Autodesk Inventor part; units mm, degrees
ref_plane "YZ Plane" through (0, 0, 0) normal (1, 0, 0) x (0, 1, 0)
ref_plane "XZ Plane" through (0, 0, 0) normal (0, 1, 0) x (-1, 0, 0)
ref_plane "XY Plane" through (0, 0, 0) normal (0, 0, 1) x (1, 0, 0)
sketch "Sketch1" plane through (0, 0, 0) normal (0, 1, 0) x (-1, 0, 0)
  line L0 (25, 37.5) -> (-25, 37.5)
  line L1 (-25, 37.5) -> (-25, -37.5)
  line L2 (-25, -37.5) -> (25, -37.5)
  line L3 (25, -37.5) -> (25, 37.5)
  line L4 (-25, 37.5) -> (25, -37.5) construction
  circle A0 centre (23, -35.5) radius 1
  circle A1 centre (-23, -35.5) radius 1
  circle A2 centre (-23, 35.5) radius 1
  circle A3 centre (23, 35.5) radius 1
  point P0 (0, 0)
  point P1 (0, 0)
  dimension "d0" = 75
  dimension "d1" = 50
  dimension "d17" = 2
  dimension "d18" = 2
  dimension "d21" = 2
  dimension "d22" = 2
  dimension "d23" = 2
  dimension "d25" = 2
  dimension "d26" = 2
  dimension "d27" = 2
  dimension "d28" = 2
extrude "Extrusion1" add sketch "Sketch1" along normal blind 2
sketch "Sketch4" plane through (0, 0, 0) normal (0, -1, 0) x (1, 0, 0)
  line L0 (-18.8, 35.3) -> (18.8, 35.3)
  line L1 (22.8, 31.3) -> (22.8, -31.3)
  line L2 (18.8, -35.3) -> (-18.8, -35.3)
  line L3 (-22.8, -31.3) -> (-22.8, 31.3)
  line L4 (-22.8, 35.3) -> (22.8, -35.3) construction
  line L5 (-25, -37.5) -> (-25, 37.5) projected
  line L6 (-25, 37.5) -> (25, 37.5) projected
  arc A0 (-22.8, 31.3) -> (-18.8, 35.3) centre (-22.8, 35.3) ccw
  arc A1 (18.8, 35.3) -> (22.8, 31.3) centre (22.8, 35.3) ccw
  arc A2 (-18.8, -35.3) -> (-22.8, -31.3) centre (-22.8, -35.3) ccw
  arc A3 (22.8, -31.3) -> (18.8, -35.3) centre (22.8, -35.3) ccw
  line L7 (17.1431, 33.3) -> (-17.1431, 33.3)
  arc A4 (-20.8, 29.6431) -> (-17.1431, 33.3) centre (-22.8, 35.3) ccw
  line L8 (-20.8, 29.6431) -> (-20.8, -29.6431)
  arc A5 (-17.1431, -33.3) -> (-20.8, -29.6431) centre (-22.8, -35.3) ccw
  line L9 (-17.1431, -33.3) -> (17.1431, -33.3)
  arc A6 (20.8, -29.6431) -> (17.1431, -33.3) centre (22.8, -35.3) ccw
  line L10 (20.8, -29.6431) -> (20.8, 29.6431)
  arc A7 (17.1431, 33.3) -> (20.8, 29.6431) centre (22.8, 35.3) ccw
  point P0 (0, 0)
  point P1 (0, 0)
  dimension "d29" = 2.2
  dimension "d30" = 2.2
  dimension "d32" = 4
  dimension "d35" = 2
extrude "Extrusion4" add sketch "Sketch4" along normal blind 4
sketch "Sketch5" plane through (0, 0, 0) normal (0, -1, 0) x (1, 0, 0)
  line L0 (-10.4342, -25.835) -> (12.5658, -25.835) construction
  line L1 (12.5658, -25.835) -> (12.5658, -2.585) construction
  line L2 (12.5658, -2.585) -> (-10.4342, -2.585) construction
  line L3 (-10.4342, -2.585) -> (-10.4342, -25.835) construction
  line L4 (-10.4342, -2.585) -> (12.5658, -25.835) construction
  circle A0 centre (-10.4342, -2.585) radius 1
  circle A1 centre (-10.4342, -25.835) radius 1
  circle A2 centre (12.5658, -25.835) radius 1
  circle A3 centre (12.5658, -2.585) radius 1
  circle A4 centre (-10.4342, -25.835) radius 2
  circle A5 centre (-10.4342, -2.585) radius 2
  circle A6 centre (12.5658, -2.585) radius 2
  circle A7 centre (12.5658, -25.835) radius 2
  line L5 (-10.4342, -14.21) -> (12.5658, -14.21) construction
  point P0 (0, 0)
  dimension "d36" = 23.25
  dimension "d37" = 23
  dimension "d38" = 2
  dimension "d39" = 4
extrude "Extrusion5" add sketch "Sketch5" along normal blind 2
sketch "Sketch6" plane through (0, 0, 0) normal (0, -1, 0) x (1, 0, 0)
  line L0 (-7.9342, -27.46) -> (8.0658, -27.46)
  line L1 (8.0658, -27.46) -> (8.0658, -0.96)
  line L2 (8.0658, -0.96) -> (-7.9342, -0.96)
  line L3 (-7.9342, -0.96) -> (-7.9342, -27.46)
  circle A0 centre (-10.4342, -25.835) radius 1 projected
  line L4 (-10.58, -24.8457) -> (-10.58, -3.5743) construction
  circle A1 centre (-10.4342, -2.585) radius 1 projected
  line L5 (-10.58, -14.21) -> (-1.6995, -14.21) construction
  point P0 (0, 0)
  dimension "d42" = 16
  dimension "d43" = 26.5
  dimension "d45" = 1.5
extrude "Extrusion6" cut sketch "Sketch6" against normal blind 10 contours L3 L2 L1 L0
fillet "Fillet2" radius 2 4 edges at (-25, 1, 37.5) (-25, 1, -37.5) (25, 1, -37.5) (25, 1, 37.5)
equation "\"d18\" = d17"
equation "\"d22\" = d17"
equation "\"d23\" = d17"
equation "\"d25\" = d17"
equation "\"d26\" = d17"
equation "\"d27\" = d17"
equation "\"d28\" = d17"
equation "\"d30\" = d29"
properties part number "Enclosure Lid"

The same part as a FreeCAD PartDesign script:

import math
import FreeCAD as App
import Part
import Sketcher
Q = App.Units.Quantity


def edges_at(feature, points):
    """Names of the edges that pass closest to the given points."""
    edges = feature.Shape.Edges
    near = lambda p: min(range(len(edges)), key=lambda i: edges[i].distToShape(Part.Vertex(*p))[0])
    return sorted({f"Edge{near(p) + 1}" for p in points})


def add_polygon(sketch, points):
    """Adds a closed chain of lines whose ends are joined by coincident constraints."""
    first, n = sketch.GeometryCount, len(points)
    for a, b in zip(points, points[1:] + points[:1]):
        sketch.addGeometry(Part.LineSegment(App.Vector(*a, 0), App.Vector(*b, 0)), False)
    for i in range(n):
        sketch.addConstraint(Sketcher.Constraint("Coincident", first + i, 2, first + (i + 1) % n, 1))

doc = App.newDocument("Part")
params = doc.addObject("Spreadsheet::Sheet", "Params")
for row, (alias, value) in enumerate([
    ("sketch1_diameter", "2 mm"),
    ("sketch1_width", "50 mm"),
    ("sketch1_height", "75 mm"),
    ("pad1_length", "2 mm"),
    ("sketch2_radius", "4 mm"),
    ("sketch2_radius2", "6 mm"),
    ("sketch2_width", "37.6 mm"),
    ("sketch2_height", "62.6 mm"),
    ("pad2_length", "4 mm"),
    ("sketch3_diameter", "4 mm"),
    ("sketch3_diameter2", "2 mm"),
    ("pad3_length", "2 mm"),
    ("sketch4_width", "16 mm"),
    ("sketch4_height", "26.5 mm"),
    ("pocket1_length", "10 mm"),
    ("fillet_radius", "2 mm"),
], start=1):
    params.set(f"A{row}", alias)
    params.set(f"B{row}", "=" + value)
    params.setAlias(f"B{row}", alias)

body = doc.addObject("PartDesign::Body", "Body")

sketch1 = doc.addObject("Sketcher::SketchObject", "Sketch")
body.addObject(sketch1)
sketch1.AttachmentSupport = (doc.XZ_Plane, [""])
sketch1.MapMode = "FlatFace"
add_polygon(sketch1, [(-25, -37.5), (-25, 37.5), (25, 37.5), (25, -37.5)])
sketch1.addGeometry(Part.Circle(App.Vector(23, -35.5, 0), App.Vector(0, 0, 1), 1), False)
sketch1.addGeometry(Part.Circle(App.Vector(-23, -35.5, 0), App.Vector(0, 0, 1), 1), False)
sketch1.addGeometry(Part.Circle(App.Vector(23, 35.5, 0), App.Vector(0, 0, 1), 1), False)
sketch1.addGeometry(Part.Circle(App.Vector(-23, 35.5, 0), App.Vector(0, 0, 1), 1), False)
sketch1.addConstraint([
    Sketcher.Constraint("Vertical", 0),
    Sketcher.Constraint("Horizontal", 1),
    Sketcher.Constraint("Vertical", 2),
    Sketcher.Constraint("Horizontal", 3),
    Sketcher.Constraint("Equal", 4, 5),
    Sketcher.Constraint("Equal", 5, 6),
    Sketcher.Constraint("Equal", 6, 7),
    Sketcher.Constraint("Symmetric", 5, 3, 6, 3, -1, 1),
    Sketcher.Constraint("Symmetric", 4, 3, 7, 3, -1, 1),
    Sketcher.Constraint("Symmetric", 0, 2, 2, 2, -1, 1),
    Sketcher.Constraint("Symmetric", 4, 3, 5, 3, -2),
    Sketcher.Constraint("Diameter", 4, Q("2 mm")),
    Sketcher.Constraint("DistanceX", 1, 1, 1, 2, Q("50 mm")),
    Sketcher.Constraint("DistanceY", 0, 1, 0, 2, Q("75 mm")),
    Sketcher.Constraint("DistanceX", 0, 2, 7, 3, Q("2 mm")),
    Sketcher.Constraint("DistanceY", 7, 3, 0, 2, Q("2 mm")),
])
sketch1.setExpression("Constraints[15]", "Params.sketch1_diameter")
sketch1.setExpression("Constraints[16]", "Params.sketch1_width")
sketch1.setExpression("Constraints[17]", "Params.sketch1_height")
pad1 = doc.addObject("PartDesign::Pad", "Pad")
body.addObject(pad1)
pad1.Profile = sketch1
pad1.setExpression("Length", "Params.pad1_length")
pad1.Reversed = True

sketch2 = doc.addObject("Sketcher::SketchObject", "Sketch001")
body.addObject(sketch2)
sketch2.AttachmentSupport = (doc.XZ_Plane, [""])
sketch2.MapMode = "FlatFace"
sketch2.addGeometry([
    Part.LineSegment(App.Vector(18.8, 35.3, 0), App.Vector(-18.8, 35.3, 0)),
    Part.ArcOfCircle(Part.Circle(App.Vector(-22.8, 35.3, 0), App.Vector(0, 0, 1), 4), math.radians(-90), math.radians(0)),
    Part.LineSegment(App.Vector(-22.8, 31.3, 0), App.Vector(-22.8, -31.3, 0)),
    Part.ArcOfCircle(Part.Circle(App.Vector(-22.8, -35.3, 0), App.Vector(0, 0, 1), 4), math.radians(0), math.radians(90)),
    Part.LineSegment(App.Vector(-18.8, -35.3, 0), App.Vector(18.8, -35.3, 0)),
    Part.ArcOfCircle(Part.Circle(App.Vector(22.8, -35.3, 0), App.Vector(0, 0, 1), 4), math.radians(90), math.radians(180)),
    Part.LineSegment(App.Vector(22.8, -31.3, 0), App.Vector(22.8, 31.3, 0)),
    Part.ArcOfCircle(Part.Circle(App.Vector(22.8, 35.3, 0), App.Vector(0, 0, 1), 4), math.radians(180), math.radians(270)),
    Part.LineSegment(App.Vector(-17.1, 33.3, 0), App.Vector(17.1, 33.3, 0)),
    Part.ArcOfCircle(Part.Circle(App.Vector(22.8, 35.3, 0), App.Vector(0, 0, 1), 6), math.radians(-161), math.radians(-109)),
    Part.LineSegment(App.Vector(20.8, 29.6, 0), App.Vector(20.8, -29.6, 0)),
    Part.ArcOfCircle(Part.Circle(App.Vector(22.8, -35.3, 0), App.Vector(0, 0, 1), 6), math.radians(109), math.radians(161)),
    Part.LineSegment(App.Vector(17.1, -33.3, 0), App.Vector(-17.1, -33.3, 0)),
    Part.ArcOfCircle(Part.Circle(App.Vector(-22.8, -35.3, 0), App.Vector(0, 0, 1), 6), math.radians(19), math.radians(71)),
    Part.LineSegment(App.Vector(-20.8, -29.6, 0), App.Vector(-20.8, 29.6, 0)),
    Part.ArcOfCircle(Part.Circle(App.Vector(-22.8, 35.3, 0), App.Vector(0, 0, 1), 6), math.radians(-71), math.radians(-19)),
], False)
sketch2.addConstraint([
    Sketcher.Constraint("Coincident", 0, 2, 1, 2),
    Sketcher.Constraint("Coincident", 1, 1, 2, 1),
    Sketcher.Constraint("Coincident", 2, 2, 3, 2),
    Sketcher.Constraint("Coincident", 3, 1, 4, 1),
    Sketcher.Constraint("Coincident", 4, 2, 5, 2),
    Sketcher.Constraint("Coincident", 5, 1, 6, 1),
    Sketcher.Constraint("Coincident", 6, 2, 7, 2),
    Sketcher.Constraint("Coincident", 7, 1, 0, 1),
    Sketcher.Constraint("Coincident", 8, 2, 9, 1),
    Sketcher.Constraint("Coincident", 9, 2, 10, 1),
    Sketcher.Constraint("Coincident", 10, 2, 11, 1),
    Sketcher.Constraint("Coincident", 11, 2, 12, 1),
    Sketcher.Constraint("Coincident", 12, 2, 13, 1),
    Sketcher.Constraint("Coincident", 13, 2, 14, 1),
    Sketcher.Constraint("Coincident", 14, 2, 15, 1),
    Sketcher.Constraint("Coincident", 15, 2, 8, 1),
    Sketcher.Constraint("Horizontal", 0),
    Sketcher.Constraint("Vertical", 2),
    Sketcher.Constraint("Horizontal", 4),
    Sketcher.Constraint("Vertical", 6),
    Sketcher.Constraint("Horizontal", 8),
    Sketcher.Constraint("Vertical", 10),
    Sketcher.Constraint("Horizontal", 12),
    Sketcher.Constraint("Vertical", 14),
    Sketcher.Constraint("Coincident", 9, 3, 7, 3),
    Sketcher.Constraint("Coincident", 11, 3, 5, 3),
    Sketcher.Constraint("Coincident", 13, 3, 3, 3),
    Sketcher.Constraint("Coincident", 15, 3, 1, 3),
    Sketcher.Constraint("Equal", 1, 3),
    Sketcher.Constraint("Equal", 3, 5),
    Sketcher.Constraint("Equal", 5, 7),
    Sketcher.Constraint("Equal", 9, 11),
    Sketcher.Constraint("Equal", 11, 13),
    Sketcher.Constraint("Equal", 13, 15),
    Sketcher.Constraint("Symmetric", 1, 3, 5, 3, -1, 1),
    Sketcher.Constraint("Symmetric", 3, 3, 7, 3, -1, 1),
    Sketcher.Constraint("Symmetric", 3, 3, 5, 3, -2),
    Sketcher.Constraint("Horizontal", 15, 3, 0, 2),
    Sketcher.Constraint("Horizontal", 13, 3, 3, 1),
    Sketcher.Constraint("Horizontal", 10, 2, 13, 2),
    Sketcher.Constraint("Vertical", 15, 3, 1, 1),
    Sketcher.Constraint("Vertical", 11, 3, 5, 1),
    Sketcher.Constraint("Vertical", 8, 2, 11, 2),
    Sketcher.Constraint("Radius", 1, Q("4 mm")),
    Sketcher.Constraint("Radius", 9, Q("6 mm")),
    Sketcher.Constraint("DistanceY", 8, 2, 7, 1, Q("2 mm")),
    Sketcher.Constraint("DistanceX", 9, 2, 6, 2, Q("2 mm")),
    Sketcher.Constraint("DistanceX", 0, 2, 0, 1, Q("37.6 mm")),
    Sketcher.Constraint("DistanceY", 2, 2, 2, 1, Q("62.6 mm")),
])
sketch2.setExpression("Constraints[43]", "Params.sketch2_radius")
sketch2.setExpression("Constraints[44]", "Params.sketch2_radius2")
sketch2.setExpression("Constraints[47]", "Params.sketch2_width")
sketch2.setExpression("Constraints[48]", "Params.sketch2_height")
pad2 = doc.addObject("PartDesign::Pad", "Pad001")
body.addObject(pad2)
pad2.Profile = sketch2
pad2.setExpression("Length", "Params.pad2_length")

sketch3 = doc.addObject("Sketcher::SketchObject", "Sketch002")
body.addObject(sketch3)
sketch3.AttachmentSupport = (doc.XZ_Plane, [""])
sketch3.MapMode = "FlatFace"
sketch3.addGeometry([
    Part.Circle(App.Vector(-10.4, -25.8, 0), App.Vector(0, 0, 1), 2),
    Part.Circle(App.Vector(-10.4, -25.8, 0), App.Vector(0, 0, 1), 1),
    Part.Circle(App.Vector(-10.4, -2.6, 0), App.Vector(0, 0, 1), 2),
    Part.Circle(App.Vector(-10.4, -2.6, 0), App.Vector(0, 0, 1), 1),
    Part.Circle(App.Vector(12.6, -2.6, 0), App.Vector(0, 0, 1), 2),
    Part.Circle(App.Vector(12.6, -2.6, 0), App.Vector(0, 0, 1), 1),
    Part.Circle(App.Vector(12.6, -25.8, 0), App.Vector(0, 0, 1), 2),
    Part.Circle(App.Vector(12.6, -25.8, 0), App.Vector(0, 0, 1), 1),
], False)
sketch3.addConstraint([
    Sketcher.Constraint("Coincident", 1, 3, 0, 3),
    Sketcher.Constraint("Coincident", 3, 3, 2, 3),
    Sketcher.Constraint("Coincident", 5, 3, 4, 3),
    Sketcher.Constraint("Coincident", 7, 3, 6, 3),
    Sketcher.Constraint("Equal", 0, 2),
    Sketcher.Constraint("Equal", 1, 3),
    Sketcher.Constraint("Equal", 2, 4),
    Sketcher.Constraint("Equal", 3, 5),
    Sketcher.Constraint("Equal", 4, 6),
    Sketcher.Constraint("Equal", 5, 7),
    Sketcher.Constraint("Horizontal", 3, 3, 4, 3),
    Sketcher.Constraint("Horizontal", 1, 3, 6, 3),
    Sketcher.Constraint("Vertical", 1, 3, 2, 3),
    Sketcher.Constraint("Vertical", 5, 3, 6, 3),
    Sketcher.Constraint("Diameter", 0, Q("4 mm")),
    Sketcher.Constraint("Diameter", 1, Q("2 mm")),
    Sketcher.Constraint("DistanceX", 2, 3, 4, 3, Q("23 mm")),
    Sketcher.Constraint("DistanceY", 0, 3, 2, 3, Q("23.25 mm")),
    Sketcher.Constraint("DistanceY", 0, 3, -1, 1, Q("25.835 mm")),
    Sketcher.Constraint("DistanceX", 0, 3, -1, 1, Q("10.4342 mm")),
])
sketch3.setExpression("Constraints[14]", "Params.sketch3_diameter")
sketch3.setExpression("Constraints[15]", "Params.sketch3_diameter2")
pad3 = doc.addObject("PartDesign::Pad", "Pad002")
body.addObject(pad3)
pad3.Profile = sketch3
pad3.setExpression("Length", "Params.pad3_length")

sketch4 = doc.addObject("Sketcher::SketchObject", "Sketch003")
body.addObject(sketch4)
sketch4.AttachmentSupport = (doc.XZ_Plane, [""])
sketch4.MapMode = "FlatFace"
add_polygon(sketch4, [(-8, -1), (-8, -27), (8, -27), (8, -1)])
sketch4.addConstraint([
    Sketcher.Constraint("Vertical", 0),
    Sketcher.Constraint("Horizontal", 1),
    Sketcher.Constraint("Vertical", 2),
    Sketcher.Constraint("Horizontal", 3),
    Sketcher.Constraint("DistanceX", 1, 1, 1, 2, Q("16 mm")),
    Sketcher.Constraint("DistanceY", 0, 2, 0, 1, Q("26.5 mm")),
    Sketcher.Constraint("DistanceY", 0, 2, -1, 1, Q("27.46 mm")),
    Sketcher.Constraint("DistanceX", 0, 2, -1, 1, Q("7.9342 mm")),
])
sketch4.setExpression("Constraints[8]", "Params.sketch4_width")
sketch4.setExpression("Constraints[9]", "Params.sketch4_height")
pocket1 = doc.addObject("PartDesign::Pocket", "Pocket")
body.addObject(pocket1)
pocket1.Profile = sketch4
pocket1.setExpression("Length", "Params.pocket1_length")
doc.recompute()

fillet = doc.addObject("PartDesign::Fillet", "Fillet")
body.addObject(fillet)
fillet.Base = (pocket1, edges_at(pocket1, [
    (-25, 1, 37.5),
    (-25, 1, -37.5),
    (25, 1, -37.5),
    (25, 1, 37.5),
]))
fillet.setExpression("Radius", "Params.fillet_radius")

doc.recompute()
